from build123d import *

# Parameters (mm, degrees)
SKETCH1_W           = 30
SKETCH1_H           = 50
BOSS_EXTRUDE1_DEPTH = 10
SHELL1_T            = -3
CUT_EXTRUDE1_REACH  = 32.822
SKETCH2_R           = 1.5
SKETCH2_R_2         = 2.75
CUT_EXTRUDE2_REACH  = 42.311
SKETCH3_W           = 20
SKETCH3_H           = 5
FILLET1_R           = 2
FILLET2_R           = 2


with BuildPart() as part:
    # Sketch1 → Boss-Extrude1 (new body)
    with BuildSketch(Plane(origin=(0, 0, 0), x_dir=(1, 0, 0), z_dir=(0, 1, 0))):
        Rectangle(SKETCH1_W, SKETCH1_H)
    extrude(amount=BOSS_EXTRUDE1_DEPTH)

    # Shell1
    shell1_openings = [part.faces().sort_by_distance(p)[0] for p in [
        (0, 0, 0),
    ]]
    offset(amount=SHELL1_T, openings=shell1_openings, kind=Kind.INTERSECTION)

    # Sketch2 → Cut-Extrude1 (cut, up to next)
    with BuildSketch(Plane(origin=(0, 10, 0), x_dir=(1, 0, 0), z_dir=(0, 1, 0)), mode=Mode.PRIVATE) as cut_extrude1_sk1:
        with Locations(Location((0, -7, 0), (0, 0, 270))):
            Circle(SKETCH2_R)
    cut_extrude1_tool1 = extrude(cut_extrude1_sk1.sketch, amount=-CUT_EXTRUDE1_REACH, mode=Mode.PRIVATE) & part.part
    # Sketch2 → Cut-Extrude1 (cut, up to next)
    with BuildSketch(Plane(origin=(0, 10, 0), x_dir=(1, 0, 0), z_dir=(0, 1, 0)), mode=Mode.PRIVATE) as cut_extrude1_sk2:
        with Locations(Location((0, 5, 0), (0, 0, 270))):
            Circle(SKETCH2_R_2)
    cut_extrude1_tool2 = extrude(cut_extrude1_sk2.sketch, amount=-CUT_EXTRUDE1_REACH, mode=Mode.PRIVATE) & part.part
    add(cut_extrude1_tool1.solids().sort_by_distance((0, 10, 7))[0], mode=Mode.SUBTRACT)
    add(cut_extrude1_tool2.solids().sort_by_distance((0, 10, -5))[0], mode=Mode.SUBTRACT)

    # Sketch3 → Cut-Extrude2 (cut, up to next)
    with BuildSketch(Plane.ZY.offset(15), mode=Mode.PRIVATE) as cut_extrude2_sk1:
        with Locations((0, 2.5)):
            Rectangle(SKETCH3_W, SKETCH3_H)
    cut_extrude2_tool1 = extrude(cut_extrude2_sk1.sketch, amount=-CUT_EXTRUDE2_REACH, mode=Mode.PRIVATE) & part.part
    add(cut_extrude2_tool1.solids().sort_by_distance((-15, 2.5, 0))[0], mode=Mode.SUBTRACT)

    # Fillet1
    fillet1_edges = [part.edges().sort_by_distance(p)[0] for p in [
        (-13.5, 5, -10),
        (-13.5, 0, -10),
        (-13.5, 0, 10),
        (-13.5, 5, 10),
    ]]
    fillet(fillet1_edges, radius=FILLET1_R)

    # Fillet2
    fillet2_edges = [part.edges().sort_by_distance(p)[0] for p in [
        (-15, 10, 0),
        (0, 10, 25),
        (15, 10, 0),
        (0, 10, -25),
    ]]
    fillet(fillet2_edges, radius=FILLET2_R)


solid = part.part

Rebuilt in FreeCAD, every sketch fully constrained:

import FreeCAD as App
import Part
import Sketcher


def edges_at(feature, points):
    """Names of the edges that pass closest to the given points."""
    edges = feature.Shape.Edges
    near = lambda p: min(range(len(edges)), key=lambda i: edges[i].distToShape(Part.Vertex(*p))[0])
    return sorted({f"Edge{near(p) + 1}" for p in points})


def faces_at(feature, points):
    """Names of the faces that lie closest to the given points."""
    faces = feature.Shape.Faces
    near = lambda p: min(range(len(faces)), key=lambda i: faces[i].distToShape(Part.Vertex(*p))[0])
    return sorted({f"Face{near(p) + 1}" for p in points})

doc = App.newDocument("Part")
params = doc.addObject("Spreadsheet::Sheet", "Params")
for row, (alias, value) in enumerate([
    ("sketch1_width", "30 mm"),
    ("sketch1_height", "50 mm"),
    ("pad1_length", "10 mm"),
    ("thickness_wall", "3 mm"),
    ("sketch2_diameter", "3 mm"),
    ("sketch3_diameter", "5.5 mm"),
    ("sketch4_width", "5 mm"),
    ("sketch4_height", "20 mm"),
    ("fillet_radius", "2 mm"),
    ("fillet2_radius", "2 mm"),
], start=1):
    params.set(f"A{row}", alias)
    params.set(f"B{row}", "=" + value)
    params.setAlias(f"B{row}", alias)

body = doc.addObject("PartDesign::Body", "Body")

# Sketch on XZ plane
sketch1 = body.newObject("Sketcher::SketchObject", "Sketch")
sketch1.AttachmentSupport = (doc.getObject("XZ_Plane"), [""])
sketch1.MapMode = "FlatFace"
sketch1.addGeometry(Part.LineSegment(App.Vector(-15, -25, 0), App.Vector(-15, 25, 0)), False)
sketch1.addGeometry(Part.LineSegment(App.Vector(-15, 25, 0), App.Vector(15, 25, 0)), False)
sketch1.addGeometry(Part.LineSegment(App.Vector(15, 25, 0), App.Vector(15, -25, 0)), False)
sketch1.addGeometry(Part.LineSegment(App.Vector(15, -25, 0), App.Vector(-15, -25, 0)), False)
sketch1.addConstraint(Sketcher.Constraint("Coincident", 0, 2, 1, 1))
sketch1.addConstraint(Sketcher.Constraint("Coincident", 1, 2, 2, 1))
sketch1.addConstraint(Sketcher.Constraint("Coincident", 2, 2, 3, 1))
sketch1.addConstraint(Sketcher.Constraint("Coincident", 3, 2, 0, 1))
sketch1.addConstraint(Sketcher.Constraint("Vertical", 0))
sketch1.addConstraint(Sketcher.Constraint("Horizontal", 1))
sketch1.addConstraint(Sketcher.Constraint("Vertical", 2))
sketch1.addConstraint(Sketcher.Constraint("Horizontal", 3))
sketch1.addConstraint(Sketcher.Constraint("Symmetric", 0, 2, 2, 2, -1, 1))
sketch1.addConstraint(Sketcher.Constraint("DistanceX", 1, 1, 1, 2, 30.0))
sketch1.addConstraint(Sketcher.Constraint("DistanceY", 0, 1, 0, 2, 50.0))
sketch1.setExpression("Constraints[9]", "Params.sketch1_width")
sketch1.setExpression("Constraints[10]", "Params.sketch1_height")
pad1 = body.newObject("PartDesign::Pad", "Pad")
pad1.Profile = sketch1
pad1.setExpression("Length", "Params.pad1_length")
pad1.Reversed = True
doc.recompute()

thickness = body.newObject("PartDesign::Thickness", "Thickness")
thickness.Base = (pad1, faces_at(pad1, [(0, 0, 0)]))
thickness.setExpression("Value", "Params.thickness_wall")
thickness.Reversed = True
thickness.Join = "Intersection"

# Sketch on XZ plane
sketch2 = body.newObject("Sketcher::SketchObject", "Sketch001")
sketch2.AttachmentSupport = (doc.getObject("XZ_Plane"), [""])
sketch2.MapMode = "FlatFace"
sketch2.AttachmentOffset = App.Placement(App.Vector(0, 0, -10), App.Rotation())
sketch2.addGeometry(Part.Circle(App.Vector(0, 7, 0), App.Vector(0, 0, 1), 1.5), False)
sketch2.addConstraint(Sketcher.Constraint("PointOnObject", 0, 3, -2))
sketch2.addConstraint(Sketcher.Constraint("Diameter", 0, 3.0))
sketch2.addConstraint(Sketcher.Constraint("DistanceY", -1, 1, 0, 3, 7.0))
sketch2.setExpression("Constraints[1]", "Params.sketch2_diameter")
pocket1 = body.newObject("PartDesign::Pocket", "Pocket")
pocket1.Profile = sketch2
pocket1.Type = "UpToFirst"
pocket1.Reversed = True

# Sketch on XZ plane
sketch3 = body.newObject("Sketcher::SketchObject", "Sketch002")
sketch3.AttachmentSupport = (doc.getObject("XZ_Plane"), [""])
sketch3.MapMode = "FlatFace"
sketch3.AttachmentOffset = App.Placement(App.Vector(0, 0, -10), App.Rotation())
sketch3.addGeometry(Part.Circle(App.Vector(0, -5, 0), App.Vector(0, 0, 1), 2.8), False)
sketch3.addConstraint(Sketcher.Constraint("PointOnObject", 0, 3, -2))
sketch3.addConstraint(Sketcher.Constraint("Diameter", 0, 5.5))
sketch3.addConstraint(Sketcher.Constraint("DistanceY", 0, 3, -1, 1, 5.0))
sketch3.setExpression("Constraints[1]", "Params.sketch3_diameter")
pocket2 = body.newObject("PartDesign::Pocket", "Pocket001")
pocket2.Profile = sketch3
pocket2.Type = "UpToFirst"
pocket2.Reversed = True

# Sketch on YZ plane
sketch4 = body.newObject("Sketcher::SketchObject", "Sketch003")
sketch4.AttachmentSupport = (doc.getObject("YZ_Plane"), [""])
sketch4.MapMode = "FlatFace"
sketch4.AttachmentOffset = App.Placement(App.Vector(0, 0, -15), App.Rotation())
sketch4.addGeometry(Part.LineSegment(App.Vector(5, -10, 0), App.Vector(0, -10, 0)), False)
sketch4.addGeometry(Part.LineSegment(App.Vector(0, -10, 0), App.Vector(0, 10, 0)), False)
sketch4.addGeometry(Part.LineSegment(App.Vector(0, 10, 0), App.Vector(5, 10, 0)), False)
sketch4.addGeometry(Part.LineSegment(App.Vector(5, 10, 0), App.Vector(5, -10, 0)), False)
sketch4.addConstraint(Sketcher.Constraint("Coincident", 0, 2, 1, 1))
sketch4.addConstraint(Sketcher.Constraint("Coincident", 1, 2, 2, 1))
sketch4.addConstraint(Sketcher.Constraint("Coincident", 2, 2, 3, 1))
sketch4.addConstraint(Sketcher.Constraint("Coincident", 3, 2, 0, 1))
sketch4.addConstraint(Sketcher.Constraint("Horizontal", 0))
sketch4.addConstraint(Sketcher.Constraint("Vertical", 1))
sketch4.addConstraint(Sketcher.Constraint("Horizontal", 2))
sketch4.addConstraint(Sketcher.Constraint("Vertical", 3))
sketch4.addConstraint(Sketcher.Constraint("Symmetric", 0, 2, 1, 2, -1, 1))
sketch4.addConstraint(Sketcher.Constraint("DistanceX", 0, 2, 0, 1, 5.0))
sketch4.addConstraint(Sketcher.Constraint("DistanceY", 1, 1, 1, 2, 20.0))
sketch4.setExpression("Constraints[9]", "Params.sketch4_width")
sketch4.setExpression("Constraints[10]", "Params.sketch4_height")
pocket3 = body.newObject("PartDesign::Pocket", "Pocket002")
pocket3.Profile = sketch4
pocket3.Type = "UpToFirst"
pocket3.Reversed = True
doc.recompute()

fillet = body.newObject("PartDesign::Fillet", "Fillet")
fillet.Base = (pocket3, edges_at(pocket3, [
    (-13.5, 5, -10),
    (-13.5, 0, -10),
    (-13.5, 0, 10),
    (-13.5, 5, 10),
]))
fillet.setExpression("Radius", "Params.fillet_radius")
doc.recompute()

fillet2 = body.newObject("PartDesign::Fillet", "Fillet001")
fillet2.Base = (fillet, edges_at(fillet, [
    (-15, 10, 0),
    (0, 10, 25),
    (15, 10, 0),
    (0, 10, -25),
]))
fillet2.setExpression("Radius", "Params.fillet2_radius")

doc.recompute()
